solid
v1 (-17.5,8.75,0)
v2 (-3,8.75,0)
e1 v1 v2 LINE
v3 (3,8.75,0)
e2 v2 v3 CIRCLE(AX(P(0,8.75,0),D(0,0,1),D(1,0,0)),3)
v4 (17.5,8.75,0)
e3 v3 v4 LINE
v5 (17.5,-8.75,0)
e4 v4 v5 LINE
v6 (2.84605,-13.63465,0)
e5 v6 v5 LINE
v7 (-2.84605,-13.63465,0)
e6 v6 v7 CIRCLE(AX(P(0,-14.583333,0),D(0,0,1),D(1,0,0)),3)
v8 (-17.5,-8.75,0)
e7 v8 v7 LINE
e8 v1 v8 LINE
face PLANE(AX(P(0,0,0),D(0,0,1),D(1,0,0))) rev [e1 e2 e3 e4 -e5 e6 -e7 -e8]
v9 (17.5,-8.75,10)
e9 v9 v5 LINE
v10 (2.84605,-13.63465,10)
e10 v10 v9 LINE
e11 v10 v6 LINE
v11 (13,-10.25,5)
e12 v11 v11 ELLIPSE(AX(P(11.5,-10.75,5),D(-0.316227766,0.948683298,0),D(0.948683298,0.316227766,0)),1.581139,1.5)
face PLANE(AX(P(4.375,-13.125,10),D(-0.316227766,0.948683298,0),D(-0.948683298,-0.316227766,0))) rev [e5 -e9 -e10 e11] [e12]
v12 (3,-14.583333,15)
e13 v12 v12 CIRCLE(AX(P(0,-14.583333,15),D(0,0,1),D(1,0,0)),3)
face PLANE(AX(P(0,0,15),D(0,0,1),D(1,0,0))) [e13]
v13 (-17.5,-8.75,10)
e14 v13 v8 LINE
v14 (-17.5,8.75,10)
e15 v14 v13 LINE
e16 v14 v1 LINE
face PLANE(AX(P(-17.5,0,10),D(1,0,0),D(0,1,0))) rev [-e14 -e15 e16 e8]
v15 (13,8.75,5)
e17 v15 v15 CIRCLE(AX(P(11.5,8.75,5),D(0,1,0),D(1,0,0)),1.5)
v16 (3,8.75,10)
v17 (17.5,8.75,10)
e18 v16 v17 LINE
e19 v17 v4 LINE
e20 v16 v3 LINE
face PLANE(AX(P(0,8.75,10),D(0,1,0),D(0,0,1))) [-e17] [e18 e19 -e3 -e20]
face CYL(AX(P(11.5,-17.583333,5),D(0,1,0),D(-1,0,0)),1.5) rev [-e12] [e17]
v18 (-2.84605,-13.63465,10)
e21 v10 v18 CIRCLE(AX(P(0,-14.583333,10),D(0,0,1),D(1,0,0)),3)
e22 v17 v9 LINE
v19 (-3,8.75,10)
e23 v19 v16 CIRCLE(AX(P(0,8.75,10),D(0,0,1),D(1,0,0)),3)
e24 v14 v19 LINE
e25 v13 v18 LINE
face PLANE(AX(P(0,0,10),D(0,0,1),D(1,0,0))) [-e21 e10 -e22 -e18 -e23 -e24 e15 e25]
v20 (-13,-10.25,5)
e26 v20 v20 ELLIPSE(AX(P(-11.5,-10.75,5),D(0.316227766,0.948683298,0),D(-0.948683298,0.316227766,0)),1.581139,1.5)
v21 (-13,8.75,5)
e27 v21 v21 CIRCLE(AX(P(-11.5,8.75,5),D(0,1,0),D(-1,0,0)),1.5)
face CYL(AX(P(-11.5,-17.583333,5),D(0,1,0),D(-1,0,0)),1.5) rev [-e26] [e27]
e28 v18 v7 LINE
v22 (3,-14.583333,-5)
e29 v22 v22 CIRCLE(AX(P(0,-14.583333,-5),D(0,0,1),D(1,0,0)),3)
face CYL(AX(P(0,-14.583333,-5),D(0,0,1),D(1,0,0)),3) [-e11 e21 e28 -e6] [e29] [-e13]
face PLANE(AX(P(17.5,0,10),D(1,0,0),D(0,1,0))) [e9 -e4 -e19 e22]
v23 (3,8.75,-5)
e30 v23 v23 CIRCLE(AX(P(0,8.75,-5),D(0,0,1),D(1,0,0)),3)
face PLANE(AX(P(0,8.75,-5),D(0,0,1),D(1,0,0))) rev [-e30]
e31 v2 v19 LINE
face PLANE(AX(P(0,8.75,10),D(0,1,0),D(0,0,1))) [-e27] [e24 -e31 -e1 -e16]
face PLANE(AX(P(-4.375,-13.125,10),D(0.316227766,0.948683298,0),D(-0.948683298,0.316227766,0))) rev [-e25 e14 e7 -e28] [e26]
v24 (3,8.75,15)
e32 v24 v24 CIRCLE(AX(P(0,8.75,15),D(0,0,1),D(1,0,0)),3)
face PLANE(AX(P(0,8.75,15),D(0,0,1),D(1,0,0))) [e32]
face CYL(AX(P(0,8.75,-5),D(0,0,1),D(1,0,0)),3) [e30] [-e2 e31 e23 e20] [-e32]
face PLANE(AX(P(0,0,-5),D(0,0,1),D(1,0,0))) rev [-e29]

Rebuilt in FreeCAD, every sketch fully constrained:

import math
import FreeCAD as App
import Part
import Sketcher

V = App.Vector
Q = App.Units.Quantity

doc = App.newDocument("Part")
body = doc.addObject("PartDesign::Body", "Body")

# Sketch on XY plane
sketch1 = body.newObject("Sketcher::SketchObject", "Sketch")
sketch1.AttachmentSupport = (doc.getObject("XY_Plane"), [""])
sketch1.MapMode = "FlatFace"
sketch1.addGeometry(Part.LineSegment(V(-17.5, 8.8, 0), V(-17.5, -8.8, 0)), False)
sketch1.addGeometry(Part.LineSegment(V(-17.5, -8.8, 0), V(-2.8, -13.6, 0)), False)
sketch1.addGeometry(Part.ArcOfCircle(Part.Circle(V(0, -14.6, 0), V(0, 0, 1), 3), math.radians(18), math.radians(162)), False)
sketch1.addGeometry(Part.LineSegment(V(2.8, -13.6, 0), V(17.5, -8.8, 0)), False)
sketch1.addGeometry(Part.LineSegment(V(17.5, -8.8, 0), V(17.5, 8.8, 0)), False)
sketch1.addGeometry(Part.LineSegment(V(17.5, 8.8, 0), V(-17.5, 8.8, 0)), False)
sketch1.addConstraint(Sketcher.Constraint("Coincident", 0, 2, 1, 1))
sketch1.addConstraint(Sketcher.Constraint("Coincident", 1, 2, 2, 2))
sketch1.addConstraint(Sketcher.Constraint("Coincident", 2, 1, 3, 1))
sketch1.addConstraint(Sketcher.Constraint("Coincident", 3, 2, 4, 1))
sketch1.addConstraint(Sketcher.Constraint("Coincident", 4, 2, 5, 1))
sketch1.addConstraint(Sketcher.Constraint("Coincident", 5, 2, 0, 1))
sketch1.addConstraint(Sketcher.Constraint("Vertical", 0))
sketch1.addConstraint(Sketcher.Constraint("Vertical", 4))
sketch1.addConstraint(Sketcher.Constraint("Horizontal", 5))
sketch1.addConstraint(Sketcher.Constraint("Symmetric", 0, 2, 4, 2, -1, 1))
sketch1.addConstraint(Sketcher.Constraint("Symmetric", 1, 2, 2, 1, -2))
sketch1.addConstraint(Sketcher.Constraint("Horizontal", 0, 2, 3, 2))
sketch1.addConstraint(Sketcher.Constraint("Radius", 2, Q("3 mm")))
sketch1.addConstraint(Sketcher.Constraint("DistanceX", 5, 2, 5, 1, Q("35 mm")))
sketch1.addConstraint(Sketcher.Constraint("DistanceY", 0, 2, 0, 1, Q("17.5 mm")))
sketch1.addConstraint(Sketcher.Constraint("DistanceX", 1, 2, 2, 1, Q("5.6921 mm")))
sketch1.addConstraint(Sketcher.Constraint("Distance", 1, Q("15.44662 mm")))
pad1 = body.newObject("PartDesign::Pad", "Pad")
pad1.Profile = sketch1
pad1.Length = 10

# Sketch on XY plane
sketch2 = body.newObject("Sketcher::SketchObject", "Sketch001")
sketch2.AttachmentSupport = (doc.getObject("XY_Plane"), [""])
sketch2.MapMode = "FlatFace"
sketch2.addGeometry(Part.Circle(V(0, -14.6, 0), V(0, 0, 1), 3), False)
sketch2.addConstraint(Sketcher.Constraint("PointOnObject", 0, 3, -2))
sketch2.addConstraint(Sketcher.Constraint("Diameter", 0, Q("6 mm")))
sketch2.addConstraint(Sketcher.Constraint("DistanceY", 0, 3, -1, 1, Q("14.583333 mm")))
pad2 = body.newObject("PartDesign::Pad", "Pad001")
pad2.Profile = sketch2
pad2.Type = "TwoLengths"
pad2.Length = 15
pad2.Length2 = 5

# Sketch on XZ plane
sketch3 = body.newObject("Sketcher::SketchObject", "Sketch002")
sketch3.AttachmentSupport = (doc.getObject("XZ_Plane"), [""])
sketch3.MapMode = "FlatFace"
sketch3.AttachmentOffset = App.Placement(V(0, 0, -8.75), App.Rotation())
sketch3.addGeometry(Part.Circle(V(-11.5, 5, 0), V(0, 0, 1), 1.5), False)
sketch3.addGeometry(Part.Circle(V(11.5, 5, 0), V(0, 0, 1), 1.5), False)
sketch3.addConstraint(Sketcher.Constraint("Equal", 0, 1))
sketch3.addConstraint(Sketcher.Constraint("Symmetric", 0, 3, 1, 3, -2))
sketch3.addConstraint(Sketcher.Constraint("Diameter", 0, Q("3 mm")))
sketch3.addConstraint(Sketcher.Constraint("DistanceY", -1, 1, 0, 3, Q("5 mm")))
sketch3.addConstraint(Sketcher.Constraint("DistanceX", 0, 3, 1, 3, Q("23 mm")))
pocket1 = body.newObject("PartDesign::Pocket", "Pocket")
pocket1.Profile = sketch3
pocket1.Type = "ThroughAll"
pocket1.Reversed = True

# Sketch on XY plane
sketch4 = body.newObject("Sketcher::SketchObject", "Sketch003")
sketch4.AttachmentSupport = (doc.getObject("XY_Plane"), [""])
sketch4.MapMode = "FlatFace"
sketch4.AttachmentOffset = App.Placement(V(0, 0, 10), App.Rotation())
sketch4.addGeometry(Part.Circle(V(0, 8.8, 0), V(0, 0, 1), 3), False)
sketch4.addConstraint(Sketcher.Constraint("PointOnObject", 0, 3, -2))
sketch4.addConstraint(Sketcher.Constraint("Diameter", 0, Q("6 mm")))
sketch4.addConstraint(Sketcher.Constraint("DistanceY", -1, 1, 0, 3, Q("8.75 mm")))
pad3 = body.newObject("PartDesign::Pad", "Pad002")
pad3.Profile = sketch4
pad3.Type = "TwoLengths"
pad3.Length = 5
pad3.Length2 = 15

doc.recompute()
